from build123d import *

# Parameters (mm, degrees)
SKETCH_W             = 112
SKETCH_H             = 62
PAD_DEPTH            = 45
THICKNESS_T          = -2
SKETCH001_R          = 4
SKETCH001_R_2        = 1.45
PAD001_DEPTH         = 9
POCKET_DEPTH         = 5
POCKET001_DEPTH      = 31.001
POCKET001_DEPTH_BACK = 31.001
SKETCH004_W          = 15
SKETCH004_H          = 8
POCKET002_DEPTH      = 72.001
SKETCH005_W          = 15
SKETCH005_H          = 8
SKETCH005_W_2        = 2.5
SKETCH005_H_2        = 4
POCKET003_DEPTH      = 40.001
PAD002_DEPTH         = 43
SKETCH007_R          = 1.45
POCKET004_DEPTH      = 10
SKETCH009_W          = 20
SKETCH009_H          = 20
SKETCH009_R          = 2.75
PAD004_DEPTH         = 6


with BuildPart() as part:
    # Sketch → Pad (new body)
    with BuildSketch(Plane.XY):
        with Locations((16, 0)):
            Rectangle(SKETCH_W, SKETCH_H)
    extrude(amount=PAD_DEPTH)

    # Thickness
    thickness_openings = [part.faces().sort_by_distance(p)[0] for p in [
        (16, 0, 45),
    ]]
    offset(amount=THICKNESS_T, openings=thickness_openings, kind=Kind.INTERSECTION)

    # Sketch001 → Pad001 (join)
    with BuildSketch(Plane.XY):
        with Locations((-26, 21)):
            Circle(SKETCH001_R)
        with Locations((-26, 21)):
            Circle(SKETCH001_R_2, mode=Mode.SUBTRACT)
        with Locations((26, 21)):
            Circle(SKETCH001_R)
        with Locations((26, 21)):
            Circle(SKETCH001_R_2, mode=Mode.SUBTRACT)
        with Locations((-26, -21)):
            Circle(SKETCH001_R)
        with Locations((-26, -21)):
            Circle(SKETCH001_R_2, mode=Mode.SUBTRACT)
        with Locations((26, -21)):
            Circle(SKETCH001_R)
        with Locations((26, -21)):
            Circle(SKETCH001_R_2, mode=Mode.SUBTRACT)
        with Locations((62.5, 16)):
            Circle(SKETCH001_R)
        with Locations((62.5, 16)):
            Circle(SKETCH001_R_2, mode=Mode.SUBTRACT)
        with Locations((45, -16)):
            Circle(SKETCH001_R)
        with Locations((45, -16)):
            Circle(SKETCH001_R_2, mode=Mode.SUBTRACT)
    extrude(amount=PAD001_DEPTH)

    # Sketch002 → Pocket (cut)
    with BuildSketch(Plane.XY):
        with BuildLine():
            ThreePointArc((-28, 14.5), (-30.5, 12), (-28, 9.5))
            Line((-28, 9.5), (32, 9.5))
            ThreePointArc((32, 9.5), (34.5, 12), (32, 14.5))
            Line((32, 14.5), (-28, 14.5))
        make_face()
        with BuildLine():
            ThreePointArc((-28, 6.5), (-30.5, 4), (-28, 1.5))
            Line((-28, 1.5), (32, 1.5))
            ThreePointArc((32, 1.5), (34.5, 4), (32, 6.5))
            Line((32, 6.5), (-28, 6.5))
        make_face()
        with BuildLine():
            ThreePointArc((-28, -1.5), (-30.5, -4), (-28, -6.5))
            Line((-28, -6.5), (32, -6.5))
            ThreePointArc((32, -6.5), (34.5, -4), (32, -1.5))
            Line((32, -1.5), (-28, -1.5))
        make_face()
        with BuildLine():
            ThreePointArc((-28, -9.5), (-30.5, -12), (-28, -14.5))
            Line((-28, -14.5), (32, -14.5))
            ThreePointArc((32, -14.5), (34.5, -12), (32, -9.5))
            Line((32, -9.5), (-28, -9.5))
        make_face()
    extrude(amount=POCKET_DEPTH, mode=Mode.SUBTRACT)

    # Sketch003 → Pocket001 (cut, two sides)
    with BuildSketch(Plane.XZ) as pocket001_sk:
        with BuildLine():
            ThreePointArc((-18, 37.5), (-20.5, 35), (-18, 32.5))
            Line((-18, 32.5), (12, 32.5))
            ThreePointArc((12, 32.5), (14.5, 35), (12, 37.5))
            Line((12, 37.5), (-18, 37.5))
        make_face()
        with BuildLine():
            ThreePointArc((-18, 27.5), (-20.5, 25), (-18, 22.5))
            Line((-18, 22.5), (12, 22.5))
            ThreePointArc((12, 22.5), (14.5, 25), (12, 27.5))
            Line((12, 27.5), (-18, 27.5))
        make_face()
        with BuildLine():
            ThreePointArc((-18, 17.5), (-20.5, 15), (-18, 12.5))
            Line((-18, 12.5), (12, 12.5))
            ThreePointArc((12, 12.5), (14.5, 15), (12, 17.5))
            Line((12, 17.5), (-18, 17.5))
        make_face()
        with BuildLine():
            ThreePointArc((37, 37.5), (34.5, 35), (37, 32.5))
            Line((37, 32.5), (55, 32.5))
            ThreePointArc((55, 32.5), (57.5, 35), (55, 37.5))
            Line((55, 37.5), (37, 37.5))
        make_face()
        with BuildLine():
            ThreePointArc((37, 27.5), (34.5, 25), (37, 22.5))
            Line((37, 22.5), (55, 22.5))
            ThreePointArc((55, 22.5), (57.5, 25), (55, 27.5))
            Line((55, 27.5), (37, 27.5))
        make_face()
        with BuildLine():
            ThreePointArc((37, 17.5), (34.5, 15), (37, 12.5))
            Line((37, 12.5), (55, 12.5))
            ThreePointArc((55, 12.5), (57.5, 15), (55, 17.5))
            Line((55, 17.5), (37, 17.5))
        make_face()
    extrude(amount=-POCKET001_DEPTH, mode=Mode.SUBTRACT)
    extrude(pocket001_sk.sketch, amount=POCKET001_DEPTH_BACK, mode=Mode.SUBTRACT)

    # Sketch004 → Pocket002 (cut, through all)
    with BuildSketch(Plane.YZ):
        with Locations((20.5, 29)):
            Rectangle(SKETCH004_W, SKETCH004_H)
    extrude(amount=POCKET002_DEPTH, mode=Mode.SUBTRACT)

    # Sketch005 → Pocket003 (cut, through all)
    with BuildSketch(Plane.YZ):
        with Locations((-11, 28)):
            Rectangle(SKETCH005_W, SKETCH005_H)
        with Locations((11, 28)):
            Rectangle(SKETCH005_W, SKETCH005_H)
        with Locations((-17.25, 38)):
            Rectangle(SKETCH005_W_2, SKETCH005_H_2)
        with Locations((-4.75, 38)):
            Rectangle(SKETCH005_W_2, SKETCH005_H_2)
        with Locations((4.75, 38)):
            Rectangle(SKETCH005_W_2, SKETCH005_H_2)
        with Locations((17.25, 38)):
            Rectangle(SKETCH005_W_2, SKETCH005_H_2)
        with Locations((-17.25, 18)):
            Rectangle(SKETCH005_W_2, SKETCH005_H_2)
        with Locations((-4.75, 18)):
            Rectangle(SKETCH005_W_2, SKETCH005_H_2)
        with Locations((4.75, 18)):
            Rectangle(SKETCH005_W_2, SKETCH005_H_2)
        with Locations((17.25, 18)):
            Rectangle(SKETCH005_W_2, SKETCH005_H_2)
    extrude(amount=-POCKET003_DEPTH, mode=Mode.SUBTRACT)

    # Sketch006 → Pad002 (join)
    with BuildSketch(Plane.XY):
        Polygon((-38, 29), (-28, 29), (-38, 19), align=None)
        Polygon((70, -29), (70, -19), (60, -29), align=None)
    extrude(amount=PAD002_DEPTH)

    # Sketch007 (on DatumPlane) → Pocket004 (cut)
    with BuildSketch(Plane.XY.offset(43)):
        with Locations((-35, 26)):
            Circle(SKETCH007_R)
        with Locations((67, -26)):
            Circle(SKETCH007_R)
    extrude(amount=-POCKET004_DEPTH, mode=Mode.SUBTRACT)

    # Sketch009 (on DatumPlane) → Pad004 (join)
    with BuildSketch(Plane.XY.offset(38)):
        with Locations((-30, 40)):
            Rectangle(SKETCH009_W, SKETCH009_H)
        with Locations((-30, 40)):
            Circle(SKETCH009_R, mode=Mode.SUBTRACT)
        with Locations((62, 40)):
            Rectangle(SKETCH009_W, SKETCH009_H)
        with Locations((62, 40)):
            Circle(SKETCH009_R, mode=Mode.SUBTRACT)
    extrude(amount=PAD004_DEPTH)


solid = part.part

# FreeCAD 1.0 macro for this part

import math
import FreeCAD as App
import Part
import Sketcher

V = App.Vector


def faces_at(feature, points):
    """Names of the faces that lie closest to the given points."""
    faces = feature.Shape.Faces
    near = lambda p: min(range(len(faces)), key=lambda i: faces[i].distToShape(Part.Vertex(*p))[0])
    return sorted({f"Face{near(p) + 1}" for p in points})


def add_polygon(sketch, points):
    """Adds a closed chain of lines whose ends are joined by coincident constraints."""
    first, n = sketch.GeometryCount, len(points)
    for a, b in zip(points, points[1:] + points[:1]):
        sketch.addGeometry(Part.LineSegment(App.Vector(*a, 0), App.Vector(*b, 0)), False)
    for i in range(n):
        sketch.addConstraint(Sketcher.Constraint("Coincident", first + i, 2, first + (i + 1) % n, 1))

doc = App.newDocument("Part")
body = doc.addObject("PartDesign::Body", "Body")

# Sketch on XY plane
sketch1 = body.newObject("Sketcher::SketchObject", "Sketch")
sketch1.AttachmentSupport = (doc.getObject("XY_Plane"), [""])
sketch1.MapMode = "FlatFace"
add_polygon(sketch1, [(-40, 31), (-40, -31), (72, -31), (72, 31)])  # lines 0-3
sketch1.addConstraint([
    Sketcher.Constraint("Vertical", 0),
    Sketcher.Constraint("Horizontal", 1),
    Sketcher.Constraint("Vertical", 2),
    Sketcher.Constraint("Horizontal", 3),
    Sketcher.Constraint("DistanceX", 1, 1, 1, 2, 112.0),
    Sketcher.Constraint("DistanceY", 0, 2, 0, 1, 62.0),
    Sketcher.Constraint("DistanceX", 0, 2, -1, 1, 40.0),
    Sketcher.Constraint("DistanceY", 0, 2, -1, 1, 31.0),
])
pad1 = body.newObject("PartDesign::Pad", "Pad")
pad1.Profile = sketch1
pad1.Length = 45
doc.recompute()

thickness = body.newObject("PartDesign::Thickness", "Thickness")
thickness.Base = (pad1, faces_at(pad1, [(16, 0, 45)]))
thickness.Value = 2
thickness.Reversed = True
thickness.Join = "Intersection"

# Sketch on XY plane
sketch2 = body.newObject("Sketcher::SketchObject", "Sketch001")
sketch2.AttachmentSupport = (doc.getObject("XY_Plane"), [""])
sketch2.MapMode = "FlatFace"
sketch2.addGeometry([
    Part.Circle(V(-26, 21, 0), V(0, 0, 1), 4),  # 0
    Part.Circle(V(-26, 21, 0), V(0, 0, 1), 1.45),  # 1
    Part.Circle(V(26, 21, 0), V(0, 0, 1), 4),  # 2
    Part.Circle(V(26, 21, 0), V(0, 0, 1), 1.45),  # 3
    Part.Circle(V(-26, -21, 0), V(0, 0, 1), 4),  # 4
    Part.Circle(V(-26, -21, 0), V(0, 0, 1), 1.45),  # 5
    Part.Circle(V(26, -21, 0), V(0, 0, 1), 4),  # 6
    Part.Circle(V(26, -21, 0), V(0, 0, 1), 1.45),  # 7
    Part.Circle(V(62.5, 16, 0), V(0, 0, 1), 4),  # 8
    Part.Circle(V(62.5, 16, 0), V(0, 0, 1), 1.45),  # 9
    Part.Circle(V(45, -16, 0), V(0, 0, 1), 4),  # 10
    Part.Circle(V(45, -16, 0), V(0, 0, 1), 1.45),  # 11
], False)
sketch2.addConstraint([
    Sketcher.Constraint("Coincident", 1, 3, 0, 3),
    Sketcher.Constraint("Coincident", 3, 3, 2, 3),
    Sketcher.Constraint("Coincident", 5, 3, 4, 3),
    Sketcher.Constraint("Coincident", 7, 3, 6, 3),
    Sketcher.Constraint("Coincident", 9, 3, 8, 3),
    Sketcher.Constraint("Coincident", 11, 3, 10, 3),
    Sketcher.Constraint("Equal", 0, 2),
    Sketcher.Constraint("Equal", 1, 3),
    Sketcher.Constraint("Equal", 2, 4),
    Sketcher.Constraint("Equal", 3, 5),
    Sketcher.Constraint("Equal", 4, 6),
    Sketcher.Constraint("Equal", 5, 7),
    Sketcher.Constraint("Equal", 6, 8),
    Sketcher.Constraint("Equal", 7, 9),
    Sketcher.Constraint("Equal", 8, 10),
    Sketcher.Constraint("Equal", 9, 11),
    Sketcher.Constraint("Symmetric", 2, 3, 4, 3, -1, 1),
    Sketcher.Constraint("Symmetric", 0, 3, 6, 3, -1, 1),
    Sketcher.Constraint("Symmetric", 0, 3, 2, 3, -2),
    Sketcher.Constraint("Diameter", 0, 8.0),
    Sketcher.Constraint("Diameter", 1, 2.9),
    Sketcher.Constraint("DistanceX", 0, 3, -1, 1, 26.0),
    Sketcher.Constraint("DistanceY", -1, 1, 0, 3, 21.0),
    Sketcher.Constraint("DistanceY", -1, 1, 8, 3, 16.0),
    Sketcher.Constraint("DistanceX", -1, 1, 10, 3, 45.0),
    Sketcher.Constraint("DistanceY", 10, 3, -1, 1, 16.0),
    Sketcher.Constraint("DistanceX", -1, 1, 8, 3, 62.5),
])
pad2 = body.newObject("PartDesign::Pad", "Pad001")
pad2.Profile = sketch2
pad2.Length = 9

# Sketch on XY plane
sketch3 = body.newObject("Sketcher::SketchObject", "Sketch002")
sketch3.AttachmentSupport = (doc.getObject("XY_Plane"), [""])
sketch3.MapMode = "FlatFace"
sketch3.addGeometry([
    Part.ArcOfCircle(Part.Circle(V(-28, 12, 0), V(0, 0, 1), 2.5), math.radians(90), math.radians(270)),  # 0
    Part.LineSegment(V(-28, 9.5, 0), V(32, 9.5, 0)),  # 1
    Part.ArcOfCircle(Part.Circle(V(32, 12, 0), V(0, 0, 1), 2.5), math.radians(-90), math.radians(90)),  # 2
    Part.LineSegment(V(32, 14.5, 0), V(-28, 14.5, 0)),  # 3
    Part.ArcOfCircle(Part.Circle(V(-28, 4, 0), V(0, 0, 1), 2.5), math.radians(90), math.radians(270)),  # 4
    Part.LineSegment(V(-28, 1.5, 0), V(32, 1.5, 0)),  # 5
    Part.ArcOfCircle(Part.Circle(V(32, 4, 0), V(0, 0, 1), 2.5), math.radians(-90), math.radians(90)),  # 6
    Part.LineSegment(V(32, 6.5, 0), V(-28, 6.5, 0)),  # 7
    Part.ArcOfCircle(Part.Circle(V(-28, -4, 0), V(0, 0, 1), 2.5), math.radians(90), math.radians(270)),  # 8
    Part.LineSegment(V(-28, -6.5, 0), V(32, -6.5, 0)),  # 9
    Part.ArcOfCircle(Part.Circle(V(32, -4, 0), V(0, 0, 1), 2.5), math.radians(-90), math.radians(90)),  # 10
    Part.LineSegment(V(32, -1.5, 0), V(-28, -1.5, 0)),  # 11
    Part.ArcOfCircle(Part.Circle(V(-28, -12, 0), V(0, 0, 1), 2.5), math.radians(90), math.radians(270)),  # 12
    Part.LineSegment(V(-28, -14.5, 0), V(32, -14.5, 0)),  # 13
    Part.ArcOfCircle(Part.Circle(V(32, -12, 0), V(0, 0, 1), 2.5), math.radians(-90), math.radians(90)),  # 14
    Part.LineSegment(V(32, -9.5, 0), V(-28, -9.5, 0)),  # 15
], False)
sketch3.addConstraint([
    Sketcher.Constraint("Tangent", 0, 2, 1, 1),
    Sketcher.Constraint("Tangent", 1, 2, 2, 1),
    Sketcher.Constraint("Tangent", 2, 2, 3, 1),
    Sketcher.Constraint("Tangent", 3, 2, 0, 1),
    Sketcher.Constraint("Tangent", 4, 2, 5, 1),
    Sketcher.Constraint("Tangent", 5, 2, 6, 1),
    Sketcher.Constraint("Tangent", 6, 2, 7, 1),
    Sketcher.Constraint("Tangent", 7, 2, 4, 1),
    Sketcher.Constraint("Tangent", 8, 2, 9, 1),
    Sketcher.Constraint("Tangent", 9, 2, 10, 1),
    Sketcher.Constraint("Tangent", 10, 2, 11, 1),
    Sketcher.Constraint("Tangent", 11, 2, 8, 1),
    Sketcher.Constraint("Tangent", 12, 2, 13, 1),
    Sketcher.Constraint("Tangent", 13, 2, 14, 1),
    Sketcher.Constraint("Tangent", 14, 2, 15, 1),
    Sketcher.Constraint("Tangent", 15, 2, 12, 1),
    Sketcher.Constraint("Horizontal", 1),
    Sketcher.Constraint("Horizontal", 3),
    Sketcher.Constraint("Horizontal", 5),
    Sketcher.Constraint("Horizontal", 7),
    Sketcher.Constraint("Horizontal", 9),
    Sketcher.Constraint("Horizontal", 11),
    Sketcher.Constraint("Horizontal", 13),
    Sketcher.Constraint("Horizontal", 15),
    Sketcher.Constraint("Equal", 2, 4),
    Sketcher.Constraint("Equal", 6, 8),
    Sketcher.Constraint("Equal", 10, 12),
    Sketcher.Constraint("Symmetric", 4, 3, 8, 3, -1),
    Sketcher.Constraint("Symmetric", 0, 3, 12, 3, -1),
    Sketcher.Constraint("Vertical", 0, 3, 4, 3),
    Sketcher.Constraint("Vertical", 2, 3, 6, 3),
    Sketcher.Constraint("Vertical", 6, 3, 10, 3),
    Sketcher.Constraint("Vertical", 10, 3, 14, 3),
    Sketcher.Constraint("Radius", 0, 2.5),
    Sketcher.Constraint("DistanceX", 1, 1, 1, 2, 60.0),
    Sketcher.Constraint("DistanceX", 0, 3, -1, 1, 28.0),
    Sketcher.Constraint("DistanceY", -1, 1, 0, 3, 12.0),
    Sketcher.Constraint("DistanceY", -1, 1, 4, 3, 4.0),
])
pocket1 = body.newObject("PartDesign::Pocket", "Pocket")
pocket1.Profile = sketch3
pocket1.Length = 5
pocket1.Reversed = True

# Sketch on XZ plane
sketch4 = body.newObject("Sketcher::SketchObject", "Sketch003")
sketch4.AttachmentSupport = (doc.getObject("XZ_Plane"), [""])
sketch4.MapMode = "FlatFace"
sketch4.addGeometry([
    Part.ArcOfCircle(Part.Circle(V(-18, 35, 0), V(0, 0, 1), 2.5), math.radians(90), math.radians(270)),  # 0
    Part.LineSegment(V(-18, 32.5, 0), V(12, 32.5, 0)),  # 1
    Part.ArcOfCircle(Part.Circle(V(12, 35, 0), V(0, 0, 1), 2.5), math.radians(-90), math.radians(90)),  # 2
    Part.LineSegment(V(12, 37.5, 0), V(-18, 37.5, 0)),  # 3
    Part.ArcOfCircle(Part.Circle(V(-18, 25, 0), V(0, 0, 1), 2.5), math.radians(90), math.radians(270)),  # 4
    Part.LineSegment(V(-18, 22.5, 0), V(12, 22.5, 0)),  # 5
    Part.ArcOfCircle(Part.Circle(V(12, 25, 0), V(0, 0, 1), 2.5), math.radians(-90), math.radians(90)),  # 6
    Part.LineSegment(V(12, 27.5, 0), V(-18, 27.5, 0)),  # 7
    Part.ArcOfCircle(Part.Circle(V(-18, 15, 0), V(0, 0, 1), 2.5), math.radians(90), math.radians(270)),  # 8
    Part.LineSegment(V(-18, 12.5, 0), V(12, 12.5, 0)),  # 9
    Part.ArcOfCircle(Part.Circle(V(12, 15, 0), V(0, 0, 1), 2.5), math.radians(-90), math.radians(90)),  # 10
    Part.LineSegment(V(12, 17.5, 0), V(-18, 17.5, 0)),  # 11
    Part.ArcOfCircle(Part.Circle(V(37, 35, 0), V(0, 0, 1), 2.5), math.radians(90), math.radians(270)),  # 12
    Part.LineSegment(V(37, 32.5, 0), V(55, 32.5, 0)),  # 13
    Part.ArcOfCircle(Part.Circle(V(55, 35, 0), V(0, 0, 1), 2.5), math.radians(-90), math.radians(90)),  # 14
    Part.LineSegment(V(55, 37.5, 0), V(37, 37.5, 0)),  # 15
    Part.ArcOfCircle(Part.Circle(V(37, 25, 0), V(0, 0, 1), 2.5), math.radians(90), math.radians(270)),  # 16
    Part.LineSegment(V(37, 22.5, 0), V(55, 22.5, 0)),  # 17
    Part.ArcOfCircle(Part.Circle(V(55, 25, 0), V(0, 0, 1), 2.5), math.radians(-90), math.radians(90)),  # 18
    Part.LineSegment(V(55, 27.5, 0), V(37, 27.5, 0)),  # 19
    Part.ArcOfCircle(Part.Circle(V(37, 15, 0), V(0, 0, 1), 2.5), math.radians(90), math.radians(270)),  # 20
    Part.LineSegment(V(37, 12.5, 0), V(55, 12.5, 0)),  # 21
    Part.ArcOfCircle(Part.Circle(V(55, 15, 0), V(0, 0, 1), 2.5), math.radians(-90), math.radians(90)),  # 22
    Part.LineSegment(V(55, 17.5, 0), V(37, 17.5, 0)),  # 23
], False)
sketch4.addConstraint([
    Sketcher.Constraint("Tangent", 0, 2, 1, 1),
    Sketcher.Constraint("Tangent", 1, 2, 2, 1),
    Sketcher.Constraint("Tangent", 2, 2, 3, 1),
    Sketcher.Constraint("Tangent", 3, 2, 0, 1),
    Sketcher.Constraint("Tangent", 4, 2, 5, 1),
    Sketcher.Constraint("Tangent", 5, 2, 6, 1),
    Sketcher.Constraint("Tangent", 6, 2, 7, 1),
    Sketcher.Constraint("Tangent", 7, 2, 4, 1),
    Sketcher.Constraint("Tangent", 8, 2, 9, 1),
    Sketcher.Constraint("Tangent", 9, 2, 10, 1),
    Sketcher.Constraint("Tangent", 10, 2, 11, 1),
    Sketcher.Constraint("Tangent", 11, 2, 8, 1),
    Sketcher.Constraint("Tangent", 12, 2, 13, 1),
    Sketcher.Constraint("Tangent", 13, 2, 14, 1),
    Sketcher.Constraint("Tangent", 14, 2, 15, 1),
    Sketcher.Constraint("Tangent", 15, 2, 12, 1),
    Sketcher.Constraint("Tangent", 16, 2, 17, 1),
    Sketcher.Constraint("Tangent", 17, 2, 18, 1),
    Sketcher.Constraint("Tangent", 18, 2, 19, 1),
    Sketcher.Constraint("Tangent", 19, 2, 16, 1),
    Sketcher.Constraint("Tangent", 20, 2, 21, 1),
    Sketcher.Constraint("Tangent", 21, 2, 22, 1),
    Sketcher.Constraint("Tangent", 22, 2, 23, 1),
    Sketcher.Constraint("Tangent", 23, 2, 20, 1),
    Sketcher.Constraint("Horizontal", 1),
    Sketcher.Constraint("Horizontal", 3),
    Sketcher.Constraint("Horizontal", 5),
    Sketcher.Constraint("Horizontal", 7),
    Sketcher.Constraint("Horizontal", 9),
    Sketcher.Constraint("Horizontal", 11),
    Sketcher.Constraint("Horizontal", 13),
    Sketcher.Constraint("Horizontal", 15),
    Sketcher.Constraint("Horizontal", 17),
    Sketcher.Constraint("Horizontal", 19),
    Sketcher.Constraint("Horizontal", 21),
    Sketcher.Constraint("Horizontal", 23),
    Sketcher.Constraint("Equal", 2, 4),
    Sketcher.Constraint("Equal", 6, 8),
    Sketcher.Constraint("Equal", 10, 12),
    Sketcher.Constraint("Equal", 14, 16),
    Sketcher.Constraint("Equal", 18, 20),
    Sketcher.Constraint("Horizontal", 2, 3, 12, 3),
    Sketcher.Constraint("Horizontal", 6, 3, 16, 3),
    Sketcher.Constraint("Horizontal", 10, 3, 20, 3),
    Sketcher.Constraint("Vertical", 0, 3, 4, 3),
    Sketcher.Constraint("Vertical", 2, 3, 6, 3),
    Sketcher.Constraint("Vertical", 4, 3, 8, 3),
    Sketcher.Constraint("Vertical", 6, 3, 10, 3),
    Sketcher.Constraint("Vertical", 12, 3, 16, 3),
    Sketcher.Constraint("Vertical", 14, 3, 18, 3),
    Sketcher.Constraint("Vertical", 16, 3, 20, 3),
    Sketcher.Constraint("Vertical", 18, 3, 22, 3),
    Sketcher.Constraint("Radius", 0, 2.5),
    Sketcher.Constraint("DistanceX", 1, 1, 1, 2, 30.0),
    Sketcher.Constraint("DistanceX", 13, 1, 13, 2, 18.0),
    Sketcher.Constraint("DistanceX", 0, 3, -1, 1, 18.0),
    Sketcher.Constraint("DistanceY", -1, 1, 0, 3, 35.0),
    Sketcher.Constraint("DistanceY", -1, 1, 4, 3, 25.0),
    Sketcher.Constraint("DistanceY", -1, 1, 8, 3, 15.0),
    Sketcher.Constraint("DistanceX", -1, 1, 12, 3, 37.0),
])
pocket2 = body.newObject("PartDesign::Pocket", "Pocket001")
pocket2.Profile = sketch4
pocket2.Type = "ThroughAll"
pocket2.Midplane = True

# Sketch on YZ plane
sketch5 = body.newObject("Sketcher::SketchObject", "Sketch004")
sketch5.AttachmentSupport = (doc.getObject("YZ_Plane"), [""])
sketch5.MapMode = "FlatFace"
add_polygon(sketch5, [(13, 33), (13, 25), (28, 25), (28, 33)])  # lines 0-3
sketch5.addConstraint([
    Sketcher.Constraint("Vertical", 0),
    Sketcher.Constraint("Horizontal", 1),
    Sketcher.Constraint("Vertical", 2),
    Sketcher.Constraint("Horizontal", 3),
    Sketcher.Constraint("DistanceX", 1, 1, 1, 2, 15.0),
    Sketcher.Constraint("DistanceY", 0, 2, 0, 1, 8.0),
    Sketcher.Constraint("DistanceX", -1, 1, 0, 2, 13.0),
    Sketcher.Constraint("DistanceY", -1, 1, 0, 2, 25.0),
])
pocket3 = body.newObject("PartDesign::Pocket", "Pocket002")
pocket3.Profile = sketch5
pocket3.Type = "ThroughAll"
pocket3.Reversed = True

# Sketch on YZ plane
sketch6 = body.newObject("Sketcher::SketchObject", "Sketch005")
sketch6.AttachmentSupport = (doc.getObject("YZ_Plane"), [""])
sketch6.MapMode = "FlatFace"
add_polygon(sketch6, [(-18.5, 32), (-18.5, 24), (-3.5, 24), (-3.5, 32)])  # lines 0-3
add_polygon(sketch6, [(3.5, 32), (3.5, 24), (18.5, 24), (18.5, 32)])  # lines 4-7
add_polygon(sketch6, [(-18.5, 40), (-18.5, 36), (-16, 36), (-16, 40)])  # lines 8-11
add_polygon(sketch6, [(-6, 40), (-6, 36), (-3.5, 36), (-3.5, 40)])  # lines 12-15
add_polygon(sketch6, [(3.5, 40), (3.5, 36), (6, 36), (6, 40)])  # lines 16-19
add_polygon(sketch6, [(16, 40), (16, 36), (18.5, 36), (18.5, 40)])  # lines 20-23
add_polygon(sketch6, [(-18.5, 20), (-18.5, 16), (-16, 16), (-16, 20)])  # lines 24-27
add_polygon(sketch6, [(-6, 20), (-6, 16), (-3.5, 16), (-3.5, 20)])  # lines 28-31
add_polygon(sketch6, [(3.5, 20), (3.5, 16), (6, 16), (6, 20)])  # lines 32-35
add_polygon(sketch6, [(16, 20), (16, 16), (18.5, 16), (18.5, 20)])  # lines 36-39
sketch6.addConstraint([
    Sketcher.Constraint("Vertical", 0),
    Sketcher.Constraint("Horizontal", 1),
    Sketcher.Constraint("Vertical", 2),
    Sketcher.Constraint("Horizontal", 3),
    Sketcher.Constraint("Vertical", 4),
    Sketcher.Constraint("Horizontal", 5),
    Sketcher.Constraint("Vertical", 6),
    Sketcher.Constraint("Horizontal", 7),
    Sketcher.Constraint("Vertical", 8),
    Sketcher.Constraint("Horizontal", 9),
    Sketcher.Constraint("Vertical", 10),
    Sketcher.Constraint("Horizontal", 11),
    Sketcher.Constraint("Vertical", 12),
    Sketcher.Constraint("Horizontal", 13),
    Sketcher.Constraint("Vertical", 14),
    Sketcher.Constraint("Horizontal", 15),
    Sketcher.Constraint("Vertical", 16),
    Sketcher.Constraint("Horizontal", 17),
    Sketcher.Constraint("Vertical", 18),
    Sketcher.Constraint("Horizontal", 19),
    Sketcher.Constraint("Vertical", 20),
    Sketcher.Constraint("Horizontal", 21),
    Sketcher.Constraint("Vertical", 22),
    Sketcher.Constraint("Horizontal", 23),
    Sketcher.Constraint("Vertical", 24),
    Sketcher.Constraint("Horizontal", 25),
    Sketcher.Constraint("Vertical", 26),
    Sketcher.Constraint("Horizontal", 27),
    Sketcher.Constraint("Vertical", 28),
    Sketcher.Constraint("Horizontal", 29),
    Sketcher.Constraint("Vertical", 30),
    Sketcher.Constraint("Horizontal", 31),
    Sketcher.Constraint("Vertical", 32),
    Sketcher.Constraint("Horizontal", 33),
    Sketcher.Constraint("Vertical", 34),
    Sketcher.Constraint("Horizontal", 35),
    Sketcher.Constraint("Vertical", 36),
    Sketcher.Constraint("Horizontal", 37),
    Sketcher.Constraint("Vertical", 38),
    Sketcher.Constraint("Horizontal", 39),
    Sketcher.Constraint("Symmetric", 1, 2, 4, 2, -2),
    Sketcher.Constraint("Symmetric", 3, 2, 6, 2, -2),
    Sketcher.Constraint("Symmetric", 13, 2, 16, 2, -2),
    Sketcher.Constraint("Symmetric", 15, 2, 18, 2, -2),
    Sketcher.Constraint("Symmetric", 9, 2, 20, 2, -2),
    Sketcher.Constraint("Symmetric", 11, 2, 22, 2, -2),
    Sketcher.Constraint("Symmetric", 29, 2, 32, 2, -2),
    Sketcher.Constraint("Symmetric", 31, 2, 34, 2, -2),
    Sketcher.Constraint("Symmetric", 25, 2, 36, 2, -2),
    Sketcher.Constraint("Symmetric", 27, 2, 38, 2, -2),
    Sketcher.Constraint("Horizontal", 9, 2, 12, 2),
    Sketcher.Constraint("Horizontal", 11, 2, 14, 2),
    Sketcher.Constraint("Horizontal", 25, 2, 28, 2),
    Sketcher.Constraint("Horizontal", 27, 2, 30, 2),
    Sketcher.Constraint("Vertical", 3, 2, 8, 2),
    Sketcher.Constraint("Vertical", 2, 2, 13, 2),
    Sketcher.Constraint("Vertical", 11, 2, 24, 2),
    Sketcher.Constraint("Vertical", 10, 2, 25, 2),
    Sketcher.Constraint("Vertical", 15, 2, 28, 2),
    Sketcher.Constraint("Vertical", 14, 2, 29, 2),
    Sketcher.Constraint("Equal", 11, 13),
    Sketcher.Constraint("Equal", 22, 24),
    Sketcher.Constraint("DistanceX", 1, 1, 1, 2, 15.0),
    Sketcher.Constraint("DistanceY", 0, 2, 0, 1, 8.0),
    Sketcher.Constraint("DistanceY", 8, 2, 8, 1, 4.0),
    Sketcher.Constraint("DistanceX", 9, 1, 9, 2, 2.5),
    Sketcher.Constraint("DistanceY", -1, 1, 0, 2, 24.0),
    Sketcher.Constraint("DistanceY", -1, 1, 8, 2, 36.0),
    Sketcher.Constraint("DistanceX", 9, 2, -1, 1, 16.0),
    Sketcher.Constraint("DistanceY", -1, 1, 24, 2, 16.0),
])
pocket4 = body.newObject("PartDesign::Pocket", "Pocket003")
pocket4.Profile = sketch6
pocket4.Type = "ThroughAll"

# Sketch on XY plane
sketch7 = body.newObject("Sketcher::SketchObject", "Sketch006")
sketch7.AttachmentSupport = (doc.getObject("XY_Plane"), [""])
sketch7.MapMode = "FlatFace"
add_polygon(sketch7, [(-28, 29), (-38, 29), (-38, 19)])  # lines 0-2
add_polygon(sketch7, [(70, -29), (70, -19), (60, -29)])  # lines 3-5
sketch7.addConstraint([
    Sketcher.Constraint("Horizontal", 0),
    Sketcher.Constraint("Vertical", 1),
    Sketcher.Constraint("Vertical", 3),
    Sketcher.Constraint("Horizontal", 5),
    Sketcher.Constraint("Parallel", 2, 4),
    Sketcher.Constraint("Equal", 0, 5),
    Sketcher.Constraint("Equal", 5, 1),
    Sketcher.Constraint("DistanceX", 0, 2, 0, 1, 10.0),
    Sketcher.Constraint("DistanceX", 0, 2, -1, 1, 38.0),
    Sketcher.Constraint("DistanceY", -1, 1, 0, 2, 29.0),
    Sketcher.Constraint("DistanceX", -1, 1, 3, 2, 70.0),
    Sketcher.Constraint("DistanceY", 3, 2, -1, 1, 19.0),
])
pad3 = body.newObject("PartDesign::Pad", "Pad002")
pad3.Profile = sketch7
pad3.Length = 43

# Sketch on XY plane
sketch8 = body.newObject("Sketcher::SketchObject", "Sketch007")
sketch8.AttachmentSupport = (doc.getObject("XY_Plane"), [""])
sketch8.MapMode = "FlatFace"
sketch8.AttachmentOffset = App.Placement(V(0, 0, 43), App.Rotation())
sketch8.addGeometry([
    Part.Circle(V(-35, 26, 0), V(0, 0, 1), 1.45),
    Part.Circle(V(67, -26, 0), V(0, 0, 1), 1.45),
], False)
sketch8.addConstraint([
    Sketcher.Constraint("Equal", 0, 1),
    Sketcher.Constraint("Diameter", 0, 2.9),
    Sketcher.Constraint("DistanceX", 0, 3, -1, 1, 35.0),
    Sketcher.Constraint("DistanceY", -1, 1, 0, 3, 26.0),
    Sketcher.Constraint("DistanceX", -1, 1, 1, 3, 67.0),
    Sketcher.Constraint("DistanceY", 1, 3, -1, 1, 26.0),
])
pocket5 = body.newObject("PartDesign::Pocket", "Pocket004")
pocket5.Profile = sketch8
pocket5.Length = 10

# Sketch on XY plane
sketch9 = body.newObject("Sketcher::SketchObject", "Sketch008")
sketch9.AttachmentSupport = (doc.getObject("XY_Plane"), [""])
sketch9.MapMode = "FlatFace"
sketch9.AttachmentOffset = App.Placement(V(0, 0, 38), App.Rotation())
add_polygon(sketch9, [(-40, 50), (-40, 30), (-20, 30), (-20, 50)])  # lines 0-3
sketch9.addGeometry(Part.Circle(V(-30, 40, 0), V(0, 0, 1), 2.75), False)  # 4
add_polygon(sketch9, [(52, 50), (52, 30), (72, 30), (72, 50)])  # lines 5-8
sketch9.addGeometry(Part.Circle(V(62, 40, 0), V(0, 0, 1), 2.75), False)  # 9
sketch9.addConstraint([
    Sketcher.Constraint("Vertical", 0),
    Sketcher.Constraint("Horizontal", 1),
    Sketcher.Constraint("Vertical", 2),
    Sketcher.Constraint("Horizontal", 3),
    Sketcher.Constraint("Vertical", 5),
    Sketcher.Constraint("Horizontal", 6),
    Sketcher.Constraint("Vertical", 7),
    Sketcher.Constraint("Horizontal", 8),
    Sketcher.Constraint("Equal", 4, 9),
    Sketcher.Constraint("Horizontal", 4, 3, 9, 3),
    Sketcher.Constraint("Horizontal", 1, 2, 5, 2),
    Sketcher.Constraint("Horizontal", 3, 2, 7, 2),
    Sketcher.Constraint("Equal", 3, 6),
    Sketcher.Constraint("Equal", 8, 0),
    Sketcher.Constraint("Diameter", 4, 5.5),
    Sketcher.Constraint("DistanceX", 1, 1, 1, 2, 20.0),
    Sketcher.Constraint("DistanceX", 4, 3, -1, 1, 30.0),
    Sketcher.Constraint("DistanceY", -1, 1, 4, 3, 40.0),
    Sketcher.Constraint("DistanceX", -1, 1, 9, 3, 62.0),
    Sketcher.Constraint("DistanceX", 0, 2, -1, 1, 40.0),
    Sketcher.Constraint("DistanceY", -1, 1, 0, 2, 30.0),
    Sketcher.Constraint("DistanceX", -1, 1, 5, 2, 52.0),
])
pad4 = body.newObject("PartDesign::Pad", "Pad003")
pad4.Profile = sketch9
pad4.Length = 6

doc.recompute()
